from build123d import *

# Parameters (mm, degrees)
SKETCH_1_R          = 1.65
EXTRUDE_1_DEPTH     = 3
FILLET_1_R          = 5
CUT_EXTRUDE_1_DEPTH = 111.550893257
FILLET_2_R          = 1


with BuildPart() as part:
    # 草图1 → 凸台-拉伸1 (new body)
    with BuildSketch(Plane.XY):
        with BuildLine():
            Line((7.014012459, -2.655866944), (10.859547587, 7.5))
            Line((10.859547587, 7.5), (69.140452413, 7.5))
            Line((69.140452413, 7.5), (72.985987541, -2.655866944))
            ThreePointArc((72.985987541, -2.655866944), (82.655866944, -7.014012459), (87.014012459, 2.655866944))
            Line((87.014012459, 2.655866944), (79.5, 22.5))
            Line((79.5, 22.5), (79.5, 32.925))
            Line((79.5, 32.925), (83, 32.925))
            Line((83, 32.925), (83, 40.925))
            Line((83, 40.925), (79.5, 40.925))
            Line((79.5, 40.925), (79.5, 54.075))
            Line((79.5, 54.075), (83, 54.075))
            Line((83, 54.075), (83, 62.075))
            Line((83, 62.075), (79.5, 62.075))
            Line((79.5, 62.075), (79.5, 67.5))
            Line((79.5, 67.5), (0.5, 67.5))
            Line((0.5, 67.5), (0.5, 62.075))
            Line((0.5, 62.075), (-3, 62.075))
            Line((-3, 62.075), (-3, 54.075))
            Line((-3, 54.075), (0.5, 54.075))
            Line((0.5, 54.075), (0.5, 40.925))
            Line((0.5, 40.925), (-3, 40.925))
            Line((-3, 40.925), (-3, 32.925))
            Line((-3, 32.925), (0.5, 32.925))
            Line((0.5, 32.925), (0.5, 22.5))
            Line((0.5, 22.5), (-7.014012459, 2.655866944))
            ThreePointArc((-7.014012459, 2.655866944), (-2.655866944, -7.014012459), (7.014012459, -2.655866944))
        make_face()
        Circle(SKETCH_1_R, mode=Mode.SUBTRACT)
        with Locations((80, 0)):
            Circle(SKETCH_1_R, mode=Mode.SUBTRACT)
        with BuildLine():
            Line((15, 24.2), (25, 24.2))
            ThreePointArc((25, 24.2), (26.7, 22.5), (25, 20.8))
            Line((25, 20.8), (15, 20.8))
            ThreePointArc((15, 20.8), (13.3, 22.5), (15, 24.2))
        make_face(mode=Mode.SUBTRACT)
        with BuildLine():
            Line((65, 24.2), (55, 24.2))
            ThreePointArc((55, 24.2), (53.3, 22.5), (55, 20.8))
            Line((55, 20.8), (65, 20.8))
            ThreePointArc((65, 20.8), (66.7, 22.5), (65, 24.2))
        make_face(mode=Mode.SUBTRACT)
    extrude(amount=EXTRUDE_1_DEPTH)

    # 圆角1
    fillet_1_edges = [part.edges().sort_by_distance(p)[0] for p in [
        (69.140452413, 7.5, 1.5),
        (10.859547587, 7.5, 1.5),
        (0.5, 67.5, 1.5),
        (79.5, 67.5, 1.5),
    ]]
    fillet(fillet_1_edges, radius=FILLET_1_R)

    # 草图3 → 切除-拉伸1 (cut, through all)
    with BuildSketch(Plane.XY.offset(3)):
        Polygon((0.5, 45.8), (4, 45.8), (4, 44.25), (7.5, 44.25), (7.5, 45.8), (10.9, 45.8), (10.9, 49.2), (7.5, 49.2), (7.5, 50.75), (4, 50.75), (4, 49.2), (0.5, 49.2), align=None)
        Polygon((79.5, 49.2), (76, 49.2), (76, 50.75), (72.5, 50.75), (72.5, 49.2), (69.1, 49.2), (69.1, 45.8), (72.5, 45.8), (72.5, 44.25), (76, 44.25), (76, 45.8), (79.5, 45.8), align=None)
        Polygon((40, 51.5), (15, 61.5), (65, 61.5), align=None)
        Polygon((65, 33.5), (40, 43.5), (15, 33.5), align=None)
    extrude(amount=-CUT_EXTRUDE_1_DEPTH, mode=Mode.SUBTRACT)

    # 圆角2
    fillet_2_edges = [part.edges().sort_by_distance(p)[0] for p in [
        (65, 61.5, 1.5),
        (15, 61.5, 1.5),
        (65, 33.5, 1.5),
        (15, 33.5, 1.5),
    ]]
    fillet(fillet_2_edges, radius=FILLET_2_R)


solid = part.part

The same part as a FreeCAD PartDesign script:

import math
import FreeCAD as App
import Part
import Sketcher
Q = App.Units.Quantity


def edges_at(feature, points):
    """Names of the edges that pass closest to the given points."""
    edges = feature.Shape.Edges
    near = lambda p: min(range(len(edges)), key=lambda i: edges[i].distToShape(Part.Vertex(*p))[0])
    return sorted({f"Edge{near(p) + 1}" for p in points})


def add_polygon(sketch, points):
    """Adds a closed chain of lines whose ends are joined by coincident constraints."""
    first, n = sketch.GeometryCount, len(points)
    for a, b in zip(points, points[1:] + points[:1]):
        sketch.addGeometry(Part.LineSegment(App.Vector(*a, 0), App.Vector(*b, 0)), False)
    for i in range(n):
        sketch.addConstraint(Sketcher.Constraint("Coincident", first + i, 2, first + (i + 1) % n, 1))

doc = App.newDocument("Part")
body = doc.addObject("PartDesign::Body", "Body")

sketch1 = body.newObject("Sketcher::SketchObject", "Sketch")
sketch1.AttachmentSupport = (doc.getObject("XY_Plane"), [""])
sketch1.MapMode = "FlatFace"
sketch1.addGeometry([
    Part.LineSegment(App.Vector(7, -2.7, 0), App.Vector(10.9, 7.5, 0)),
    Part.LineSegment(App.Vector(10.9, 7.5, 0), App.Vector(69.1, 7.5, 0)),
    Part.LineSegment(App.Vector(69.1, 7.5, 0), App.Vector(73, -2.7, 0)),
    Part.ArcOfCircle(Part.Circle(App.Vector(80, 0, 0), App.Vector(0, 0, 1), 7.5), math.radians(-159), math.radians(21)),
    Part.LineSegment(App.Vector(87, 2.7, 0), App.Vector(79.5, 22.5, 0)),
    Part.LineSegment(App.Vector(79.5, 22.5, 0), App.Vector(79.5, 32.9, 0)),
    Part.LineSegment(App.Vector(79.5, 32.9, 0), App.Vector(83, 32.9, 0)),
    Part.LineSegment(App.Vector(83, 32.9, 0), App.Vector(83, 40.9, 0)),
    Part.LineSegment(App.Vector(83, 40.9, 0), App.Vector(79.5, 40.9, 0)),
    Part.LineSegment(App.Vector(79.5, 40.9, 0), App.Vector(79.5, 54.1, 0)),
    Part.LineSegment(App.Vector(79.5, 54.1, 0), App.Vector(83, 54.1, 0)),
    Part.LineSegment(App.Vector(83, 54.1, 0), App.Vector(83, 62.1, 0)),
    Part.LineSegment(App.Vector(83, 62.1, 0), App.Vector(79.5, 62.1, 0)),
    Part.LineSegment(App.Vector(79.5, 62.1, 0), App.Vector(79.5, 67.5, 0)),
    Part.LineSegment(App.Vector(79.5, 67.5, 0), App.Vector(0.5, 67.5, 0)),
    Part.LineSegment(App.Vector(0.5, 67.5, 0), App.Vector(0.5, 62.1, 0)),
    Part.LineSegment(App.Vector(0.5, 62.1, 0), App.Vector(-3, 62.1, 0)),
    Part.LineSegment(App.Vector(-3, 62.1, 0), App.Vector(-3, 54.1, 0)),
    Part.LineSegment(App.Vector(-3, 54.1, 0), App.Vector(0.5, 54.1, 0)),
    Part.LineSegment(App.Vector(0.5, 54.1, 0), App.Vector(0.5, 40.9, 0)),
    Part.LineSegment(App.Vector(0.5, 40.9, 0), App.Vector(-3, 40.9, 0)),
    Part.LineSegment(App.Vector(-3, 40.9, 0), App.Vector(-3, 32.9, 0)),
    Part.LineSegment(App.Vector(-3, 32.9, 0), App.Vector(0.5, 32.9, 0)),
    Part.LineSegment(App.Vector(0.5, 32.9, 0), App.Vector(0.5, 22.5, 0)),
    Part.LineSegment(App.Vector(0.5, 22.5, 0), App.Vector(-7, 2.7, 0)),
    Part.ArcOfCircle(Part.Circle(App.Vector(0, 0, 0), App.Vector(0, 0, 1), 7.5), math.radians(159), math.radians(339)),
    Part.Circle(App.Vector(0, 0, 0), App.Vector(0, 0, 1), 1.6),
    Part.Circle(App.Vector(80, 0, 0), App.Vector(0, 0, 1), 1.6),
    Part.ArcOfCircle(Part.Circle(App.Vector(15, 22.5, 0), App.Vector(0, 0, 1), 1.7), math.radians(90), math.radians(270)),
    Part.LineSegment(App.Vector(15, 24.2, 0), App.Vector(25, 24.2, 0)),
    Part.ArcOfCircle(Part.Circle(App.Vector(25, 22.5, 0), App.Vector(0, 0, 1), 1.7), math.radians(-90), math.radians(90)),
    Part.LineSegment(App.Vector(25, 20.8, 0), App.Vector(15, 20.8, 0)),
    Part.LineSegment(App.Vector(55, 24.2, 0), App.Vector(65, 24.2, 0)),
    Part.ArcOfCircle(Part.Circle(App.Vector(65, 22.5, 0), App.Vector(0, 0, 1), 1.7), math.radians(-90), math.radians(90)),
    Part.LineSegment(App.Vector(65, 20.8, 0), App.Vector(55, 20.8, 0)),
    Part.ArcOfCircle(Part.Circle(App.Vector(55, 22.5, 0), App.Vector(0, 0, 1), 1.7), math.radians(90), math.radians(270)),
], False)
sketch1.addConstraint([
    Sketcher.Constraint("Coincident", 0, 2, 1, 1),
    Sketcher.Constraint("Coincident", 1, 2, 2, 1),
    Sketcher.Constraint("Tangent", 2, 2, 3, 1),
    Sketcher.Constraint("Tangent", 3, 2, 4, 1),
    Sketcher.Constraint("Coincident", 4, 2, 5, 1),
    Sketcher.Constraint("Coincident", 5, 2, 6, 1),
    Sketcher.Constraint("Coincident", 6, 2, 7, 1),
    Sketcher.Constraint("Coincident", 7, 2, 8, 1),
    Sketcher.Constraint("Coincident", 8, 2, 9, 1),
    Sketcher.Constraint("Coincident", 9, 2, 10, 1),
    Sketcher.Constraint("Coincident", 10, 2, 11, 1),
    Sketcher.Constraint("Coincident", 11, 2, 12, 1),
    Sketcher.Constraint("Coincident", 12, 2, 13, 1),
    Sketcher.Constraint("Coincident", 13, 2, 14, 1),
    Sketcher.Constraint("Coincident", 14, 2, 15, 1),
    Sketcher.Constraint("Coincident", 15, 2, 16, 1),
    Sketcher.Constraint("Coincident", 16, 2, 17, 1),
    Sketcher.Constraint("Coincident", 17, 2, 18, 1),
    Sketcher.Constraint("Coincident", 18, 2, 19, 1),
    Sketcher.Constraint("Coincident", 19, 2, 20, 1),
    Sketcher.Constraint("Coincident", 20, 2, 21, 1),
    Sketcher.Constraint("Coincident", 21, 2, 22, 1),
    Sketcher.Constraint("Coincident", 22, 2, 23, 1),
    Sketcher.Constraint("Coincident", 23, 2, 24, 1),
    Sketcher.Constraint("Tangent", 24, 2, 25, 1),
    Sketcher.Constraint("Tangent", 25, 2, 0, 1),
    Sketcher.Constraint("Tangent", 28, 1, 29, 1),
    Sketcher.Constraint("Tangent", 29, 2, 30, 2),
    Sketcher.Constraint("Tangent", 30, 1, 31, 1),
    Sketcher.Constraint("Tangent", 31, 2, 28, 2),
    Sketcher.Constraint("Tangent", 32, 2, 33, 2),
    Sketcher.Constraint("Tangent", 33, 1, 34, 1),
    Sketcher.Constraint("Tangent", 34, 2, 35, 2),
    Sketcher.Constraint("Tangent", 35, 1, 32, 1),
    Sketcher.Constraint("Horizontal", 1),
    Sketcher.Constraint("Vertical", 5),
    Sketcher.Constraint("Horizontal", 6),
    Sketcher.Constraint("Vertical", 7),
    Sketcher.Constraint("Horizontal", 8),
    Sketcher.Constraint("Vertical", 9),
    Sketcher.Constraint("Horizontal", 10),
    Sketcher.Constraint("Vertical", 11),
    Sketcher.Constraint("Horizontal", 12),
    Sketcher.Constraint("Vertical", 13),
    Sketcher.Constraint("Horizontal", 14),
    Sketcher.Constraint("Vertical", 15),
    Sketcher.Constraint("Horizontal", 16),
    Sketcher.Constraint("Vertical", 17),
    Sketcher.Constraint("Horizontal", 18),
    Sketcher.Constraint("Vertical", 19),
    Sketcher.Constraint("Horizontal", 20),
    Sketcher.Constraint("Vertical", 21),
    Sketcher.Constraint("Horizontal", 22),
    Sketcher.Constraint("Vertical", 23),
    Sketcher.Constraint("Horizontal", 29),
    Sketcher.Constraint("Horizontal", 31),
    Sketcher.Constraint("Horizontal", 32),
    Sketcher.Constraint("Horizontal", 34),
    Sketcher.Constraint("Coincident", 25, 3, -1, 1),
    Sketcher.Constraint("Coincident", 26, 3, -1, 1),
    Sketcher.Constraint("Coincident", 27, 3, 3, 3),
    Sketcher.Constraint("Equal", 3, 25),
    Sketcher.Constraint("Equal", 26, 27),
    Sketcher.Constraint("Equal", 30, 33),
    Sketcher.Constraint("PointOnObject", 3, 3, -1),
    Sketcher.Constraint("Parallel", 2, 4),
    Sketcher.Constraint("Parallel", 0, 24),
    Sketcher.Constraint("Horizontal", 30, 3, 33, 3),
    Sketcher.Constraint("Horizontal", 35, 3, 4, 2),
    Sketcher.Constraint("Horizontal", 12, 2, 15, 2),
    Sketcher.Constraint("Horizontal", 10, 2, 17, 2),
    Sketcher.Constraint("Horizontal", 8, 2, 19, 2),
    Sketcher.Constraint("Horizontal", 6, 2, 21, 2),
    Sketcher.Constraint("Horizontal", 4, 2, 23, 2),
    Sketcher.Constraint("Horizontal", 3, 2, 24, 2),
    Sketcher.Constraint("Vertical", 5, 2, 8, 2),
    Sketcher.Constraint("Vertical", 7, 2, 10, 2),
    Sketcher.Constraint("Vertical", 9, 2, 12, 2),
    Sketcher.Constraint("Vertical", 15, 2, 18, 2),
    Sketcher.Constraint("Vertical", 17, 2, 20, 2),
    Sketcher.Constraint("Vertical", 19, 2, 22, 2),
    Sketcher.Constraint("Equal", 12, 16),
    Sketcher.Constraint("Equal", 31, 32),
    Sketcher.Constraint("Equal", 7, 11),
    Sketcher.Constraint("Diameter", 26, Q("3.3 mm")),
    Sketcher.Constraint("Radius", 3, Q("7.5 mm")),
    Sketcher.Constraint("Radius", 28, Q("1.7 mm")),
    Sketcher.Constraint("DistanceX", 14, 2, 14, 1, Q("79 mm")),
    Sketcher.Constraint("DistanceX", 29, 1, 29, 2, Q("10 mm")),
    Sketcher.Constraint("DistanceY", 7, 1, 7, 2, Q("8 mm")),
    Sketcher.Constraint("DistanceX", 6, 1, 6, 2, Q("3.5 mm")),
    Sketcher.Constraint("DistanceX", -1, 1, 3, 3, Q("80 mm")),
    Sketcher.Constraint("DistanceX", -1, 1, 28, 3, Q("15 mm")),
    Sketcher.Constraint("DistanceX", -1, 1, 33, 3, Q("65 mm")),
    Sketcher.Constraint("DistanceY", 0, 2, 28, 3, Q("15 mm")),
    Sketcher.Constraint("DistanceY", 28, 3, 14, 2, Q("45 mm")),
    Sketcher.Constraint("DistanceY", 9, 1, 9, 2, Q("13.15 mm")),
    Sketcher.Constraint("DistanceY", -1, 1, 28, 3, Q("22.5 mm")),
    Sketcher.Constraint("DistanceY", 5, 1, 5, 2, Q("10.425 mm")),
])
pad1 = body.newObject("PartDesign::Pad", "Pad")
pad1.Profile = sketch1
pad1.Length = 3
doc.recompute()

fillet = body.newObject("PartDesign::Fillet", "Fillet")
fillet.Base = (pad1, edges_at(pad1, [
    (69.14, 7.5, 1.5),
    (10.86, 7.5, 1.5),
    (0.5, 67.5, 1.5),
    (79.5, 67.5, 1.5),
]))
fillet.Radius = 5

sketch2 = body.newObject("Sketcher::SketchObject", "Sketch001")
sketch2.AttachmentSupport = (doc.getObject("XY_Plane"), [""])
sketch2.MapMode = "FlatFace"
sketch2.AttachmentOffset = App.Placement(App.Vector(0, 0, 3), App.Rotation())
add_polygon(sketch2, [(0.5, 45.8), (4, 45.8), (4, 44.2), (7.5, 44.2), (7.5, 45.8), (10.9, 45.8), (10.9, 49.2), (7.5, 49.2), (7.5, 50.8), (4, 50.8), (4, 49.2), (0.5, 49.2)])
add_polygon(sketch2, [(79.5, 49.2), (76, 49.2), (76, 50.8), (72.5, 50.8), (72.5, 49.2), (69.1, 49.2), (69.1, 45.8), (72.5, 45.8), (72.5, 44.2), (76, 44.2), (76, 45.8), (79.5, 45.8)])
add_polygon(sketch2, [(15, 61.5), (40, 51.5), (65, 61.5)])
add_polygon(sketch2, [(65, 33.5), (40, 43.5), (15, 33.5)])
sketch2.addConstraint([
    Sketcher.Constraint("Horizontal", 0),
    Sketcher.Constraint("Vertical", 1),
    Sketcher.Constraint("Horizontal", 2),
    Sketcher.Constraint("Vertical", 3),
    Sketcher.Constraint("Horizontal", 4),
    Sketcher.Constraint("Vertical", 5),
    Sketcher.Constraint("Horizontal", 6),
    Sketcher.Constraint("Vertical", 7),
    Sketcher.Constraint("Horizontal", 8),
    Sketcher.Constraint("Vertical", 9),
    Sketcher.Constraint("Horizontal", 10),
    Sketcher.Constraint("Vertical", 11),
    Sketcher.Constraint("Horizontal", 12),
    Sketcher.Constraint("Vertical", 13),
    Sketcher.Constraint("Horizontal", 14),
    Sketcher.Constraint("Vertical", 15),
    Sketcher.Constraint("Horizontal", 16),
    Sketcher.Constraint("Vertical", 17),
    Sketcher.Constraint("Horizontal", 18),
    Sketcher.Constraint("Vertical", 19),
    Sketcher.Constraint("Horizontal", 20),
    Sketcher.Constraint("Vertical", 21),
    Sketcher.Constraint("Horizontal", 22),
    Sketcher.Constraint("Vertical", 23),
    Sketcher.Constraint("Horizontal", 26),
    Sketcher.Constraint("Horizontal", 29),
    Sketcher.Constraint("Parallel", 24, 27),
    Sketcher.Constraint("Parallel", 25, 28),
    Sketcher.Constraint("Horizontal", 0, 2, 3, 2),
    Sketcher.Constraint("Horizontal", 6, 2, 9, 2),
    Sketcher.Constraint("Horizontal", 10, 2, 12, 2),
    Sketcher.Constraint("Horizontal", 8, 2, 13, 2),
    Sketcher.Constraint("Horizontal", 12, 2, 15, 2),
    Sketcher.Constraint("Horizontal", 11, 2, 17, 2),
    Sketcher.Constraint("Horizontal", 2, 2, 19, 2),
    Sketcher.Constraint("Horizontal", 18, 2, 21, 2),
    Sketcher.Constraint("Vertical", 3, 2, 6, 2),
    Sketcher.Constraint("Vertical", 1, 2, 8, 2),
    Sketcher.Constraint("Vertical", 15, 2, 18, 2),
    Sketcher.Constraint("Vertical", 13, 2, 20, 2),
    Sketcher.Constraint("Vertical", 24, 2, 27, 2),
    Sketcher.Constraint("Vertical", 26, 2, 28, 2),
    Sketcher.Constraint("Vertical", 25, 2, 29, 2),
    Sketcher.Constraint("Equal", 0, 2),
    Sketcher.Constraint("Equal", 10, 12),
    Sketcher.Constraint("Equal", 12, 14),
    Sketcher.Constraint("Equal", 6, 16),
    Sketcher.Constraint("Equal", 18, 5),
    Sketcher.Constraint("Equal", 3, 7),
    Sketcher.Constraint("DistanceX", 26, 2, 26, 1, Q("50 mm")),
    Sketcher.Constraint("DistanceX", 0, 1, 0, 2, Q("3.5 mm")),
    Sketcher.Constraint("DistanceX", 4, 1, 4, 2, Q("3.4 mm")),
    Sketcher.Constraint("DistanceX", -1, 1, 0, 2, Q("4 mm")),
    Sketcher.Constraint("DistanceX", -1, 1, 12, 2, Q("76 mm")),
    Sketcher.Constraint("DistanceX", -1, 1, 24, 2, Q("40 mm")),
    Sketcher.Constraint("DistanceY", 27, 2, 24, 2, Q("8 mm")),
    Sketcher.Constraint("DistanceY", 1, 2, 1, 1, Q("1.55 mm")),
    Sketcher.Constraint("DistanceY", -1, 1, 0, 2, Q("45.8 mm")),
    Sketcher.Constraint("DistanceY", -1, 1, 24, 2, Q("51.5 mm")),
    Sketcher.Constraint("DistanceY", -1, 1, 25, 2, Q("61.5 mm")),
])
pocket1 = body.newObject("PartDesign::Pocket", "Pocket")
pocket1.Profile = sketch2
pocket1.Type = "ThroughAll"
doc.recompute()

fillet2 = body.newObject("PartDesign::Fillet", "Fillet001")
fillet2.Base = (pocket1, edges_at(pocket1, [
    (65, 61.5, 1.5),
    (15, 61.5, 1.5),
    (65, 33.5, 1.5),
    (15, 33.5, 1.5),
]))
fillet2.Radius = 1

doc.recompute()
